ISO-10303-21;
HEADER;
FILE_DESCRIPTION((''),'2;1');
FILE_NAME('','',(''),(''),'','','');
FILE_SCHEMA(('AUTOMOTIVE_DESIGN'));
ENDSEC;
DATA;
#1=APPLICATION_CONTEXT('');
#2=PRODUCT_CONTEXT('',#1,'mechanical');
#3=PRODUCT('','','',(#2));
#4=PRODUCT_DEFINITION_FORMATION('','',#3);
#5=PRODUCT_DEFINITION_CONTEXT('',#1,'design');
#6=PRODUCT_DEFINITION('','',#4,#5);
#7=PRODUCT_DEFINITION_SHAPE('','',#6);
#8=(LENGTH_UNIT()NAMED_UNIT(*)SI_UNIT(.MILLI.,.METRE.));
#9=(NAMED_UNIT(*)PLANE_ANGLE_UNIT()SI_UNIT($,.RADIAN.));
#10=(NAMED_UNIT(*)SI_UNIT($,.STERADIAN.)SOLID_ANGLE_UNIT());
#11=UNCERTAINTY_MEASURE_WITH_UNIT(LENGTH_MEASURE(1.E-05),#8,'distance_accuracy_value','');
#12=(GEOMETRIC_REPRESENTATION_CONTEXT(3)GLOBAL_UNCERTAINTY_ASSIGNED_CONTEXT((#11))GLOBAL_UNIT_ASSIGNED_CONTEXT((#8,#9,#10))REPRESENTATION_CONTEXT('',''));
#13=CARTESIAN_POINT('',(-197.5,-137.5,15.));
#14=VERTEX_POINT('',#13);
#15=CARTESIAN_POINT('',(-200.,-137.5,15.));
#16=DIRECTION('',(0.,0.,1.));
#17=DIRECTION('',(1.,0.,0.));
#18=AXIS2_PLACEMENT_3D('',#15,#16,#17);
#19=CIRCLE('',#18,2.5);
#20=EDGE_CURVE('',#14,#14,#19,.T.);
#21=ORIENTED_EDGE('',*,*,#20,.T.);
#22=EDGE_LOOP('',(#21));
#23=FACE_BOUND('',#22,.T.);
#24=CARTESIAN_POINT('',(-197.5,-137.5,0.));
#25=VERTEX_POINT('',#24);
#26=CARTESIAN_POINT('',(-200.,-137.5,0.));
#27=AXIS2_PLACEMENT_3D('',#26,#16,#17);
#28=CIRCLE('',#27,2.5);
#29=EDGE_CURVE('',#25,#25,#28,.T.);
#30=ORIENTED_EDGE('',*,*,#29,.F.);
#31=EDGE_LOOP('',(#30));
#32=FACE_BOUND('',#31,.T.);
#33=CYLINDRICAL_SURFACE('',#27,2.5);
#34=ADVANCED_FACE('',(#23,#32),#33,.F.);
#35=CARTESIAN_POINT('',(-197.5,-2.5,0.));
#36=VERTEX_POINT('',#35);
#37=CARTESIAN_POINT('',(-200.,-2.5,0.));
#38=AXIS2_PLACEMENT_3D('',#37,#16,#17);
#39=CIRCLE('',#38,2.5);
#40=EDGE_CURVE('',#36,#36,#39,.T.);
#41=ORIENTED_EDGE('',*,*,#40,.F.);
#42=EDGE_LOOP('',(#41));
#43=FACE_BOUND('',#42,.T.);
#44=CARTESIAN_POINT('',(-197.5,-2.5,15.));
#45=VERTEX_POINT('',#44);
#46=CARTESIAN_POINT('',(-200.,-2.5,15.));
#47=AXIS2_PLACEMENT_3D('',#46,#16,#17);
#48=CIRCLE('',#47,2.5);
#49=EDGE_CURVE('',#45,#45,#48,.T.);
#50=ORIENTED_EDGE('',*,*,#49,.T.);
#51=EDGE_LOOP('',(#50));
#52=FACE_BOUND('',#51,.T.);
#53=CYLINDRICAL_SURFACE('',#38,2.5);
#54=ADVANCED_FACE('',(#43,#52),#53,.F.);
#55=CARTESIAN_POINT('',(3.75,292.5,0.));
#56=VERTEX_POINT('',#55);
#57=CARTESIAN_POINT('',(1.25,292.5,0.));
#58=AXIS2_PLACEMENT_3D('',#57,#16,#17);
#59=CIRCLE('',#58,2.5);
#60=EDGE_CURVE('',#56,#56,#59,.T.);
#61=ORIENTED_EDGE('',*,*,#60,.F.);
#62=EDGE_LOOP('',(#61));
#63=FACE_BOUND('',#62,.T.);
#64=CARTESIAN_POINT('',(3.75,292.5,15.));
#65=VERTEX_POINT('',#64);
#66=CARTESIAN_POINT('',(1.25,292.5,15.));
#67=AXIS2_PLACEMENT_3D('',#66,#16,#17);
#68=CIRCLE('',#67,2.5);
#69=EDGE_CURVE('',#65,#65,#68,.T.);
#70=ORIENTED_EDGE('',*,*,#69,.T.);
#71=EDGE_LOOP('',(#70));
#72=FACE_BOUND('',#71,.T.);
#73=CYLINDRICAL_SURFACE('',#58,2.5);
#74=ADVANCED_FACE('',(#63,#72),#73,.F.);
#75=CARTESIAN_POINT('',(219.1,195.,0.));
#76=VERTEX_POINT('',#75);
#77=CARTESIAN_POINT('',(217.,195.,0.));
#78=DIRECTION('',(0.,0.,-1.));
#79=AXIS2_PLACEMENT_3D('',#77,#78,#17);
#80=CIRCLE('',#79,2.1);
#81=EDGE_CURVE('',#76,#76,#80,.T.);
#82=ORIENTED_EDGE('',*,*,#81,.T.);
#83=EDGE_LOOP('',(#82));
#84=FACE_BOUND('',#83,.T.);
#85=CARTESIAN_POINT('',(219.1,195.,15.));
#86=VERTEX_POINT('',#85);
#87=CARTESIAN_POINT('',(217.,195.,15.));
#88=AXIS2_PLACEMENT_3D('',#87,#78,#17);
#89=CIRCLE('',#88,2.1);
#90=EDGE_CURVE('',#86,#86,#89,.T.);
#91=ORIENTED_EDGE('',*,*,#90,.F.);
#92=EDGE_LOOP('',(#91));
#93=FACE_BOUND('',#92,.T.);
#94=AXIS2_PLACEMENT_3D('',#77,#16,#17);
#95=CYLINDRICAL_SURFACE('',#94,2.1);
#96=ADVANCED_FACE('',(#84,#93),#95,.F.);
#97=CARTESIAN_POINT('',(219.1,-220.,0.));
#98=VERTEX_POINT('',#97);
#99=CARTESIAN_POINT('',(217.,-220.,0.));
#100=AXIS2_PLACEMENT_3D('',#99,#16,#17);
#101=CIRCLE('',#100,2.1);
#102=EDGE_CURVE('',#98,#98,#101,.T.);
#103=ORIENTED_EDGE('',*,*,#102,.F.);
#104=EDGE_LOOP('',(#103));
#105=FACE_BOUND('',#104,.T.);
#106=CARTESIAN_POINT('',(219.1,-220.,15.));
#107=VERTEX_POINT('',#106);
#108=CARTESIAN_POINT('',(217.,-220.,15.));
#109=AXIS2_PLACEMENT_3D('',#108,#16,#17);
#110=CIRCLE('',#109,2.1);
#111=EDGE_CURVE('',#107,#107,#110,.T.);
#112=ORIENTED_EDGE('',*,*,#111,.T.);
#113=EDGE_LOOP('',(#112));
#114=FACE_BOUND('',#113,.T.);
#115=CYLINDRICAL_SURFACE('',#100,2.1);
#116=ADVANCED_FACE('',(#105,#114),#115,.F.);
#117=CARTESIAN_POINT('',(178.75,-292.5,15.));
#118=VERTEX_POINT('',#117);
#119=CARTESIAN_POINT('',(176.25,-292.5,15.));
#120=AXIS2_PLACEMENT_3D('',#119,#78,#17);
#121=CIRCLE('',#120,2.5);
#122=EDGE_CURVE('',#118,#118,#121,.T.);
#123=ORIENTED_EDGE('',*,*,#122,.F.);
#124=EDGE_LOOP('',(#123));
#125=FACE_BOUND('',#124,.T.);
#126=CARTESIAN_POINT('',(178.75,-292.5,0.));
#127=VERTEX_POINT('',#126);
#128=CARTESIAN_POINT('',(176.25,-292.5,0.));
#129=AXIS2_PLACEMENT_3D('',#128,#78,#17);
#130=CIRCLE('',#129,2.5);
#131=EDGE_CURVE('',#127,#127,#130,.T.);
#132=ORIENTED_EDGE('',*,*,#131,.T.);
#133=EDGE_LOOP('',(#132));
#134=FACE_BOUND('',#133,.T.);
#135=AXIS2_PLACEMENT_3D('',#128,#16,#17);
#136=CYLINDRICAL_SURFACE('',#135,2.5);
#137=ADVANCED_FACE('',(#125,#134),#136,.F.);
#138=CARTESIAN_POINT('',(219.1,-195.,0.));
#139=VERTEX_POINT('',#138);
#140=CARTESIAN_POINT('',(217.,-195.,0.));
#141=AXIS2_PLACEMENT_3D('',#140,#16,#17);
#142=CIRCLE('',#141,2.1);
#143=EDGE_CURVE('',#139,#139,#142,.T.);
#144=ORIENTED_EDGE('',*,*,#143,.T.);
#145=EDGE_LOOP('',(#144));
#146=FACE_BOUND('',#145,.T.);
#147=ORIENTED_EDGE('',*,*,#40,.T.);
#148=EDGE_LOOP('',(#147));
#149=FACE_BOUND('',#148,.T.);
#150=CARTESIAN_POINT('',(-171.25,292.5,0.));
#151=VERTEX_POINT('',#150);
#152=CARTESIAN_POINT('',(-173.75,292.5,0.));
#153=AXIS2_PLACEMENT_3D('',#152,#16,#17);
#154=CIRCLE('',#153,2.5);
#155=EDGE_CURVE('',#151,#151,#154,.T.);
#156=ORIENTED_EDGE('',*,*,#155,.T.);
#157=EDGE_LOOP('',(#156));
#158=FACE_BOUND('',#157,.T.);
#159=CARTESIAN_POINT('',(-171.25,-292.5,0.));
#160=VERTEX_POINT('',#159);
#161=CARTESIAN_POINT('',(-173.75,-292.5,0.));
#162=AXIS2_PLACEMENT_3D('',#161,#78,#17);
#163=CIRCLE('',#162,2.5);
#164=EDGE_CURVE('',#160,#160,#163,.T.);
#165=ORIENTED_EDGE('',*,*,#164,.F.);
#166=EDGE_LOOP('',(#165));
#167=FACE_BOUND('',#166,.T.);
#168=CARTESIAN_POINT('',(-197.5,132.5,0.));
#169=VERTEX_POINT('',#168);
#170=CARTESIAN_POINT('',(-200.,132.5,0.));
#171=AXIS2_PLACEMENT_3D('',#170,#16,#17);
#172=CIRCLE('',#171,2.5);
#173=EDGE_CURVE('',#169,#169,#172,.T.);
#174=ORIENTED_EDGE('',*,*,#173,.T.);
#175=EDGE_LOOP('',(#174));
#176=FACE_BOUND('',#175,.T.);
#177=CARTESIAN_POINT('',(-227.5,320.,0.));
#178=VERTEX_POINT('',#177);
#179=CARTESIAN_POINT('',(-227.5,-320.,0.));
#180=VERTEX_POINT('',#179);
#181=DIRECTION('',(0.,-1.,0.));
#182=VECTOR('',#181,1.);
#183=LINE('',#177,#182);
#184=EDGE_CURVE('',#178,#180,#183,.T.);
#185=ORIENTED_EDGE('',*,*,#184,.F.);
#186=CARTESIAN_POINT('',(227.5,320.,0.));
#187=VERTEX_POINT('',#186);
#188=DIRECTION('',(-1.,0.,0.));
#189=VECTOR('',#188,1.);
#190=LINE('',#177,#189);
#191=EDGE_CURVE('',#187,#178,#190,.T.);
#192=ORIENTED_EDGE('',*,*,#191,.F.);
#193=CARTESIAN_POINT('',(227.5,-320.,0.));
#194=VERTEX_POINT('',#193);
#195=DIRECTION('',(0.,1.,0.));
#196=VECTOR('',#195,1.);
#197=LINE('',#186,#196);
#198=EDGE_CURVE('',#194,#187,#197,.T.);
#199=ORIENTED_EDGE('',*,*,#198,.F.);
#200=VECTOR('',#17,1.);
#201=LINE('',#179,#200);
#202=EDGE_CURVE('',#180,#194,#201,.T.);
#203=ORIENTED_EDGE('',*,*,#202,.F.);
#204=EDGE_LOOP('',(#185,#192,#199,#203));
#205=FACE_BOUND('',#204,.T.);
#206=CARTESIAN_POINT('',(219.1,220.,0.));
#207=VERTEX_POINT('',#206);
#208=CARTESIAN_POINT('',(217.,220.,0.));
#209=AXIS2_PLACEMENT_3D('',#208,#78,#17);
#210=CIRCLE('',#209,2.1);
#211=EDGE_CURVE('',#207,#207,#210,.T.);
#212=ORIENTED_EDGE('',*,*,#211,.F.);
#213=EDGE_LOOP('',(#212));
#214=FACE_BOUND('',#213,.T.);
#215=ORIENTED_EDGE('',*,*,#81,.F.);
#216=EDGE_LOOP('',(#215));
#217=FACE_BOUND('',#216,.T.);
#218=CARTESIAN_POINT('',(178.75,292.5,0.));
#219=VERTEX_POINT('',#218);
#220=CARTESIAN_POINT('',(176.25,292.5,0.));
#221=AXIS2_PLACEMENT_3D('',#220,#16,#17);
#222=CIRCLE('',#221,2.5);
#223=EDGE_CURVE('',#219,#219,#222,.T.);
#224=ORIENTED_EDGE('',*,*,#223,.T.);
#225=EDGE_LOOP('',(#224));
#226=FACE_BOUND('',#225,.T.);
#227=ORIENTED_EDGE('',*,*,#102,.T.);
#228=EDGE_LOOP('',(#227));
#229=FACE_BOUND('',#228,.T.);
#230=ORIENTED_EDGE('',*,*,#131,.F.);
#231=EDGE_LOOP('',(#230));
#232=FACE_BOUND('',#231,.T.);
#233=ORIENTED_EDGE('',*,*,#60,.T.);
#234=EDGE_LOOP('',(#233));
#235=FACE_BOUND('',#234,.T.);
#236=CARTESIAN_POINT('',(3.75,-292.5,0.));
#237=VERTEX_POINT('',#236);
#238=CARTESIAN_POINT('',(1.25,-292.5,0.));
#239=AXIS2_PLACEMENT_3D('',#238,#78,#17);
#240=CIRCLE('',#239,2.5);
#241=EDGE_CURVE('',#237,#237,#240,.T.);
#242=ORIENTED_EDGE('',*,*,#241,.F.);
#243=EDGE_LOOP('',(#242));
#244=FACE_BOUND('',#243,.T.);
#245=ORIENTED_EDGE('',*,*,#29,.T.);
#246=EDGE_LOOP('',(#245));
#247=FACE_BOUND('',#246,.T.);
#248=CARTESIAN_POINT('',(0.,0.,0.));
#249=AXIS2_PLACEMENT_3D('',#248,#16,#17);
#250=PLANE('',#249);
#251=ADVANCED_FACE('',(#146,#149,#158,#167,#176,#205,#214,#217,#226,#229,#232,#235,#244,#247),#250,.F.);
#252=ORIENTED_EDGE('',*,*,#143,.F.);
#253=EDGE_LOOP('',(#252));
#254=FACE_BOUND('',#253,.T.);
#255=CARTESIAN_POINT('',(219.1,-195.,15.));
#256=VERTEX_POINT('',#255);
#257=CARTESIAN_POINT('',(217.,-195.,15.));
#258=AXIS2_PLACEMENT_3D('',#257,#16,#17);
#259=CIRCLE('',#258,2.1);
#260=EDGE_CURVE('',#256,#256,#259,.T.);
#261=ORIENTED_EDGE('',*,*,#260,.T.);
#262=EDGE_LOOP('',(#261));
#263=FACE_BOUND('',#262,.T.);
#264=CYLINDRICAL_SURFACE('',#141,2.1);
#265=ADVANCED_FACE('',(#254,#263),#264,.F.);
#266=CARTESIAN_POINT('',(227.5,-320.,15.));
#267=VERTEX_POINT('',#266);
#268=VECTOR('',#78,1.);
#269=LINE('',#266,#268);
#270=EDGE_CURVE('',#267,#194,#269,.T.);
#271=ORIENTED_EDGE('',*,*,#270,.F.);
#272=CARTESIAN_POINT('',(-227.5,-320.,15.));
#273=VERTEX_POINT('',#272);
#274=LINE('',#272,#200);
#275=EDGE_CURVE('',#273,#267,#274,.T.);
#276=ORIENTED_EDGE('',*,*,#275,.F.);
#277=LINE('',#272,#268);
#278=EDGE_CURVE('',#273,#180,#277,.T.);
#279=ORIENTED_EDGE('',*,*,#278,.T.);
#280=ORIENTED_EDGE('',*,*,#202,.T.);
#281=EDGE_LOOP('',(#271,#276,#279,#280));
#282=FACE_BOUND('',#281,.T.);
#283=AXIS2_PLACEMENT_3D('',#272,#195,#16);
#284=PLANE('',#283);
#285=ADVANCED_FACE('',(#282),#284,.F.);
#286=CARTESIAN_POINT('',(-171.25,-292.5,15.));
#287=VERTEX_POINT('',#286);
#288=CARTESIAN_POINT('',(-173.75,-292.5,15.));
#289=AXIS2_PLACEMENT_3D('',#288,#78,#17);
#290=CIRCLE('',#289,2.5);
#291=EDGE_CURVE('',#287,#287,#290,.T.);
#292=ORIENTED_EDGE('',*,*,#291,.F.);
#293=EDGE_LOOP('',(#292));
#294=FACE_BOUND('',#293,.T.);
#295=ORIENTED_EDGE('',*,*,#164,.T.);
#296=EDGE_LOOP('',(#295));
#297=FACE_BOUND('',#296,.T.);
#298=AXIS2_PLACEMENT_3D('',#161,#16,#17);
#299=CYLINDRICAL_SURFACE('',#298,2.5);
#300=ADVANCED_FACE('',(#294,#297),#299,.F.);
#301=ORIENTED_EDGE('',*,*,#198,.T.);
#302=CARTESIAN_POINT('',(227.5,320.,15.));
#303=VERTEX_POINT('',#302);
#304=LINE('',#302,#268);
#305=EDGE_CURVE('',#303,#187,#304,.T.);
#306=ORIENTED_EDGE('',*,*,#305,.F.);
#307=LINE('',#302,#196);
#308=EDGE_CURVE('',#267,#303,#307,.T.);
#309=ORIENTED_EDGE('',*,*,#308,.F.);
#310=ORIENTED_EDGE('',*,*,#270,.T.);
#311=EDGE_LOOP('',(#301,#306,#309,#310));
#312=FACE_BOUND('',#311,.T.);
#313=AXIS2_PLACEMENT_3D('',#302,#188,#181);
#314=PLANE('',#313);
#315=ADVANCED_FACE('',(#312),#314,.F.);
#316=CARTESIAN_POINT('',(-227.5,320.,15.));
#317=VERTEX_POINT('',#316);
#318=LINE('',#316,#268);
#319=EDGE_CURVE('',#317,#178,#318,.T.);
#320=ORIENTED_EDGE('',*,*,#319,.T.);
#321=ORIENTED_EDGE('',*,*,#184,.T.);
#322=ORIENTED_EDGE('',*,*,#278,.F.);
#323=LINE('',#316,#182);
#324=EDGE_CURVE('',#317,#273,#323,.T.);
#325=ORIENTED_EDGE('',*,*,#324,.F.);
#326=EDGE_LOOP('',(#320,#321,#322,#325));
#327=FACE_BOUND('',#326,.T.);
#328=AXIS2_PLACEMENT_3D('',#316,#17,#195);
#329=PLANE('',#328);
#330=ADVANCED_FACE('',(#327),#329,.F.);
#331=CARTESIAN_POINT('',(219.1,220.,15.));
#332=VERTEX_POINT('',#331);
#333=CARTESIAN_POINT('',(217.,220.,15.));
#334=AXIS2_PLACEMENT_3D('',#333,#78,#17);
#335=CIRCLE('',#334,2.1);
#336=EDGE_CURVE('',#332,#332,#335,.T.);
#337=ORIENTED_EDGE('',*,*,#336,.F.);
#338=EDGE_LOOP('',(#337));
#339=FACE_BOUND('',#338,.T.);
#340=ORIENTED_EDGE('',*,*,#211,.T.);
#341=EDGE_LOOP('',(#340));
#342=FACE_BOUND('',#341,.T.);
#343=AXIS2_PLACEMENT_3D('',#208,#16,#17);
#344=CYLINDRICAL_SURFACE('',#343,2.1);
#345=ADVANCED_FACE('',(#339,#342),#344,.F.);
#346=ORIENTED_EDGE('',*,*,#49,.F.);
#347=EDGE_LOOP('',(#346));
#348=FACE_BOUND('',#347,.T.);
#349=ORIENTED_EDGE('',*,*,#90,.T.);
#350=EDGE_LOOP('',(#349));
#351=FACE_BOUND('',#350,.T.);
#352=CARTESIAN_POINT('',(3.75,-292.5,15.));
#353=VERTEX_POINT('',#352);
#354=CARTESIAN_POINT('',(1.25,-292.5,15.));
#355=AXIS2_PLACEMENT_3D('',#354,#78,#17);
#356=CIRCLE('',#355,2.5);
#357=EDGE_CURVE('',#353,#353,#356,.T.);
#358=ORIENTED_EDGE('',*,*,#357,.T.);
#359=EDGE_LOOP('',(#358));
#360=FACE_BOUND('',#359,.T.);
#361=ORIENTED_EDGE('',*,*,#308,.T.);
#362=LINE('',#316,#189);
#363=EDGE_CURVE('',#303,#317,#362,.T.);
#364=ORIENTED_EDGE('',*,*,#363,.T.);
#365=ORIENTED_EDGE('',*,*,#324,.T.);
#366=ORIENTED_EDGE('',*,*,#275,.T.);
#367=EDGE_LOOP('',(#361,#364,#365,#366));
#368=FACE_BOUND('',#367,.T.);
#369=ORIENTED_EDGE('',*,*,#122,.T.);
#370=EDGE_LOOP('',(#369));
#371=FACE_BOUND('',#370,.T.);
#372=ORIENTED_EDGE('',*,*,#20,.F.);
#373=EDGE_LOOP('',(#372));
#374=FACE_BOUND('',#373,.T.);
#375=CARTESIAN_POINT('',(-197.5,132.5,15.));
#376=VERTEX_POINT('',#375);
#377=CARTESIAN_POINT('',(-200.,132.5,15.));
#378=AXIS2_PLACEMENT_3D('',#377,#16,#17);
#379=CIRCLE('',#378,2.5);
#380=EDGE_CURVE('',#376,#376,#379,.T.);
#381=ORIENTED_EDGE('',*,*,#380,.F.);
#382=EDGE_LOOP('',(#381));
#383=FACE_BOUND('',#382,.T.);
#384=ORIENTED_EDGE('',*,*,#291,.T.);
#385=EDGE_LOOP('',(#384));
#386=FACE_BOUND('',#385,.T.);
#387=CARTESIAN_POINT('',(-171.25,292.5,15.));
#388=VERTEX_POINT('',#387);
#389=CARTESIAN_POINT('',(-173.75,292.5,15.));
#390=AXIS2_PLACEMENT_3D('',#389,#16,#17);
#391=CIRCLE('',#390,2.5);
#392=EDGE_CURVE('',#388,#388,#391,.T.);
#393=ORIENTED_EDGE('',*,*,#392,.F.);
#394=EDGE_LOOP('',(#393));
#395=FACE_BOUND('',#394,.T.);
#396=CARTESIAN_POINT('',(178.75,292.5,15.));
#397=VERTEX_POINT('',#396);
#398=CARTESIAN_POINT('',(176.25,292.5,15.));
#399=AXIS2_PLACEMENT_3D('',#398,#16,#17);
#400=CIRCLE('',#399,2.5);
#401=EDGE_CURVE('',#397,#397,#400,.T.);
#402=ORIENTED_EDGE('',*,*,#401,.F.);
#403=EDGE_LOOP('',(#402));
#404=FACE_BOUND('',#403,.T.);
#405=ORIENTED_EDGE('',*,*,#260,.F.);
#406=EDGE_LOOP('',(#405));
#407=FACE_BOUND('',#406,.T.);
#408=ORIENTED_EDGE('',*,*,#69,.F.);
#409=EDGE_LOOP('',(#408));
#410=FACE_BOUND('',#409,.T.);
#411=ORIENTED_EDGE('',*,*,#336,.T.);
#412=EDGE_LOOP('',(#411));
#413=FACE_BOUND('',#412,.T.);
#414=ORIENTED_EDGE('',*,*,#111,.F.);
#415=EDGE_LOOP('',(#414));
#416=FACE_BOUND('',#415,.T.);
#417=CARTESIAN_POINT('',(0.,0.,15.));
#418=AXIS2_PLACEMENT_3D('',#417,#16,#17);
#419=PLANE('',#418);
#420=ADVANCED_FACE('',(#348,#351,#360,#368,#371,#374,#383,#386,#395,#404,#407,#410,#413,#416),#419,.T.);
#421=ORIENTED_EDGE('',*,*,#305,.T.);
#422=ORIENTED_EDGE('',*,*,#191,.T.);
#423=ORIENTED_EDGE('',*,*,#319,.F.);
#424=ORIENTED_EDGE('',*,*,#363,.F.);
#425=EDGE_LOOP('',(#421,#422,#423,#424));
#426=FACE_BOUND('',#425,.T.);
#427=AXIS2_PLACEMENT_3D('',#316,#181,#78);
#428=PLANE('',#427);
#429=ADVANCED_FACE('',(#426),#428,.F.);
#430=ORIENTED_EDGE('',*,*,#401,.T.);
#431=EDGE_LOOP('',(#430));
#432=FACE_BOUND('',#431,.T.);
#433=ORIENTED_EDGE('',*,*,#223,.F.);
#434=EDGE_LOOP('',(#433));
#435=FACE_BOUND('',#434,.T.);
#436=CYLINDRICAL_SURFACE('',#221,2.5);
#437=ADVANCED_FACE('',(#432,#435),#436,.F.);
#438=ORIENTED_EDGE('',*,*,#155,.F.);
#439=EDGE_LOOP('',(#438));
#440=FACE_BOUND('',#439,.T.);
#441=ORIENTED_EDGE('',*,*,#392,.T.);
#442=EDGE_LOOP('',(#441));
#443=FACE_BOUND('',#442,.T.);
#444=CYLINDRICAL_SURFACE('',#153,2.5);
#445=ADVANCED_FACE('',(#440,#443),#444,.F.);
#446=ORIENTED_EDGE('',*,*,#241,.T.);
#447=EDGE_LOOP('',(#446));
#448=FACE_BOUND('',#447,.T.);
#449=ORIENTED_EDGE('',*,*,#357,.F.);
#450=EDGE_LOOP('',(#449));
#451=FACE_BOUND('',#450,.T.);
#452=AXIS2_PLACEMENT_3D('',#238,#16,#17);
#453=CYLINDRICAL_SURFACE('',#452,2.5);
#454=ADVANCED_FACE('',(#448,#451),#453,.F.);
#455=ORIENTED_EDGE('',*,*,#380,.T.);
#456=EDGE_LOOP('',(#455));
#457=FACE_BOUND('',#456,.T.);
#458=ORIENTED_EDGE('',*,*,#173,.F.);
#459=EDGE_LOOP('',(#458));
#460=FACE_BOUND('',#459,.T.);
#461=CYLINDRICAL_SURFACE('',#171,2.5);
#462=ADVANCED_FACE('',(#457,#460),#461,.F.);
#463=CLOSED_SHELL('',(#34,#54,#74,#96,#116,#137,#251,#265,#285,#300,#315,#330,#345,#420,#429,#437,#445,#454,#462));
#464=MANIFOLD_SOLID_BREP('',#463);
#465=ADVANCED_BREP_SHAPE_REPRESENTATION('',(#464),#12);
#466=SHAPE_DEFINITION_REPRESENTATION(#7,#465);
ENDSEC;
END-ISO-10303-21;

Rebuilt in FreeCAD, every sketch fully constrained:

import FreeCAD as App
import Part
import Sketcher

V = App.Vector


def add_polygon(sketch, points):
    """Adds a closed chain of lines whose ends are joined by coincident constraints."""
    first, n = sketch.GeometryCount, len(points)
    for a, b in zip(points, points[1:] + points[:1]):
        sketch.addGeometry(Part.LineSegment(App.Vector(*a, 0), App.Vector(*b, 0)), False)
    for i in range(n):
        sketch.addConstraint(Sketcher.Constraint("Coincident", first + i, 2, first + (i + 1) % n, 1))

doc = App.newDocument("Part")
body = doc.addObject("PartDesign::Body", "Body")

# Sketch on XY plane
sketch1 = body.newObject("Sketcher::SketchObject", "Sketch")
sketch1.AttachmentSupport = (doc.getObject("XY_Plane"), [""])
sketch1.MapMode = "FlatFace"
add_polygon(sketch1, [(-228, 320), (-228, -320), (228, -320), (228, 320)])  # lines 0-3
sketch1.addConstraint(Sketcher.Constraint("Vertical", 0))
sketch1.addConstraint(Sketcher.Constraint("Horizontal", 1))
sketch1.addConstraint(Sketcher.Constraint("Vertical", 2))
sketch1.addConstraint(Sketcher.Constraint("Horizontal", 3))
sketch1.addConstraint(Sketcher.Constraint("Symmetric", 0, 2, 2, 2, -1, 1))
sketch1.addConstraint(Sketcher.Constraint("DistanceX", 1, 1, 1, 2, 455.0))
sketch1.addConstraint(Sketcher.Constraint("DistanceY", 0, 2, 0, 1, 640.0))
pad1 = body.newObject("PartDesign::Pad", "Pad")
pad1.Profile = sketch1
pad1.Length = 15

# Sketch on XY plane
sketch2 = body.newObject("Sketcher::SketchObject", "Sketch001")
sketch2.AttachmentSupport = (doc.getObject("XY_Plane"), [""])
sketch2.MapMode = "FlatFace"
sketch2.AttachmentOffset = App.Placement(V(0, 0, 15), App.Rotation())
sketch2.addGeometry(Part.Circle(V(-200, 132.5, 0), V(0, 0, 1), 2.5), False)
sketch2.addGeometry(Part.Circle(V(-200, -2.5, 0), V(0, 0, 1), 2.5), False)
sketch2.addGeometry(Part.Circle(V(-200, -137.5, 0), V(0, 0, 1), 2.5), False)
sketch2.addConstraint(Sketcher.Constraint("Equal", 0, 1))
sketch2.addConstraint(Sketcher.Constraint("Equal", 1, 2))
sketch2.addConstraint(Sketcher.Constraint("Vertical", 0, 3, 1, 3))
sketch2.addConstraint(Sketcher.Constraint("Vertical", 1, 3, 2, 3))
sketch2.addConstraint(Sketcher.Constraint("Diameter", 0, 5.0))
sketch2.addConstraint(Sketcher.Constraint("DistanceX", 0, 3, -1, 1, 200.0))
sketch2.addConstraint(Sketcher.Constraint("DistanceY", 1, 3, 0, 3, 135.0))
sketch2.addConstraint(Sketcher.Constraint("DistanceY", 2, 3, 1, 3, 135.0))
sketch2.addConstraint(Sketcher.Constraint("DistanceY", -1, 1, 0, 3, 132.5))
pocket1 = body.newObject("PartDesign::Pocket", "Pocket")
pocket1.Profile = sketch2
pocket1.Type = "ThroughAll"
pocket1.Midplane = True

# Sketch on XY plane
sketch3 = body.newObject("Sketcher::SketchObject", "Sketch002")
sketch3.AttachmentSupport = (doc.getObject("XY_Plane"), [""])
sketch3.MapMode = "FlatFace"
sketch3.AttachmentOffset = App.Placement(V(0, 0, 15), App.Rotation())
sketch3.addGeometry(Part.Circle(V(1.2, 292.5, 0), V(0, 0, 1), 2.5), False)
sketch3.addGeometry(Part.Circle(V(-173.8, 292.5, 0), V(0, 0, 1), 2.5), False)
sketch3.addGeometry(Part.Circle(V(176.2, 292.5, 0), V(0, 0, 1), 2.5), False)
sketch3.addConstraint(Sketcher.Constraint("Equal", 0, 1))
sketch3.addConstraint(Sketcher.Constraint("Equal", 1, 2))
sketch3.addConstraint(Sketcher.Constraint("Horizontal", 0, 3, 1, 3))
sketch3.addConstraint(Sketcher.Constraint("Horizontal", 1, 3, 2, 3))
sketch3.addConstraint(Sketcher.Constraint("Diameter", 0, 5.0))
sketch3.addConstraint(Sketcher.Constraint("DistanceX", 1, 3, 0, 3, 175.0))
sketch3.addConstraint(Sketcher.Constraint("DistanceX", 0, 3, 2, 3, 175.0))
sketch3.addConstraint(Sketcher.Constraint("DistanceY", -1, 1, 0, 3, 292.5))
sketch3.addConstraint(Sketcher.Constraint("DistanceX", -1, 1, 0, 3, 1.25))
pocket2 = body.newObject("PartDesign::Pocket", "Pocket001")
pocket2.Profile = sketch3
pocket2.Type = "ThroughAll"
doc.recompute()

mirrored = body.newObject("PartDesign::Mirrored", "Mirrored")
mirrored.Originals = [pocket2]
mirrored.MirrorPlane = (doc.getObject("XZ_Plane"), [""])
body.Tip = mirrored

# Sketch on XY plane
sketch4 = body.newObject("Sketcher::SketchObject", "Sketch003")
sketch4.AttachmentSupport = (doc.getObject("XY_Plane"), [""])
sketch4.MapMode = "FlatFace"
sketch4.AttachmentOffset = App.Placement(V(0, 0, 15), App.Rotation())
sketch4.addGeometry(Part.Circle(V(217, -220, 0), V(0, 0, 1), 2.1), False)
sketch4.addGeometry(Part.Circle(V(217, -195, 0), V(0, 0, 1), 2.1), False)
sketch4.addConstraint(Sketcher.Constraint("Equal", 0, 1))
sketch4.addConstraint(Sketcher.Constraint("Vertical", 0, 3, 1, 3))
sketch4.addConstraint(Sketcher.Constraint("Diameter", 0, 4.2))
sketch4.addConstraint(Sketcher.Constraint("DistanceX", -1, 1, 0, 3, 217.0))
sketch4.addConstraint(Sketcher.Constraint("DistanceY", 0, 3, -1, 1, 220.0))
sketch4.addConstraint(Sketcher.Constraint("DistanceY", 1, 3, -1, 1, 195.0))
pocket3 = body.newObject("PartDesign::Pocket", "Pocket002")
pocket3.Profile = sketch4
pocket3.Type = "ThroughAll"
doc.recompute()

mirrored2 = body.newObject("PartDesign::Mirrored", "Mirrored001")
mirrored2.Originals = [pocket3]
mirrored2.MirrorPlane = (doc.getObject("XZ_Plane"), [""])
body.Tip = mirrored2

doc.recompute()
